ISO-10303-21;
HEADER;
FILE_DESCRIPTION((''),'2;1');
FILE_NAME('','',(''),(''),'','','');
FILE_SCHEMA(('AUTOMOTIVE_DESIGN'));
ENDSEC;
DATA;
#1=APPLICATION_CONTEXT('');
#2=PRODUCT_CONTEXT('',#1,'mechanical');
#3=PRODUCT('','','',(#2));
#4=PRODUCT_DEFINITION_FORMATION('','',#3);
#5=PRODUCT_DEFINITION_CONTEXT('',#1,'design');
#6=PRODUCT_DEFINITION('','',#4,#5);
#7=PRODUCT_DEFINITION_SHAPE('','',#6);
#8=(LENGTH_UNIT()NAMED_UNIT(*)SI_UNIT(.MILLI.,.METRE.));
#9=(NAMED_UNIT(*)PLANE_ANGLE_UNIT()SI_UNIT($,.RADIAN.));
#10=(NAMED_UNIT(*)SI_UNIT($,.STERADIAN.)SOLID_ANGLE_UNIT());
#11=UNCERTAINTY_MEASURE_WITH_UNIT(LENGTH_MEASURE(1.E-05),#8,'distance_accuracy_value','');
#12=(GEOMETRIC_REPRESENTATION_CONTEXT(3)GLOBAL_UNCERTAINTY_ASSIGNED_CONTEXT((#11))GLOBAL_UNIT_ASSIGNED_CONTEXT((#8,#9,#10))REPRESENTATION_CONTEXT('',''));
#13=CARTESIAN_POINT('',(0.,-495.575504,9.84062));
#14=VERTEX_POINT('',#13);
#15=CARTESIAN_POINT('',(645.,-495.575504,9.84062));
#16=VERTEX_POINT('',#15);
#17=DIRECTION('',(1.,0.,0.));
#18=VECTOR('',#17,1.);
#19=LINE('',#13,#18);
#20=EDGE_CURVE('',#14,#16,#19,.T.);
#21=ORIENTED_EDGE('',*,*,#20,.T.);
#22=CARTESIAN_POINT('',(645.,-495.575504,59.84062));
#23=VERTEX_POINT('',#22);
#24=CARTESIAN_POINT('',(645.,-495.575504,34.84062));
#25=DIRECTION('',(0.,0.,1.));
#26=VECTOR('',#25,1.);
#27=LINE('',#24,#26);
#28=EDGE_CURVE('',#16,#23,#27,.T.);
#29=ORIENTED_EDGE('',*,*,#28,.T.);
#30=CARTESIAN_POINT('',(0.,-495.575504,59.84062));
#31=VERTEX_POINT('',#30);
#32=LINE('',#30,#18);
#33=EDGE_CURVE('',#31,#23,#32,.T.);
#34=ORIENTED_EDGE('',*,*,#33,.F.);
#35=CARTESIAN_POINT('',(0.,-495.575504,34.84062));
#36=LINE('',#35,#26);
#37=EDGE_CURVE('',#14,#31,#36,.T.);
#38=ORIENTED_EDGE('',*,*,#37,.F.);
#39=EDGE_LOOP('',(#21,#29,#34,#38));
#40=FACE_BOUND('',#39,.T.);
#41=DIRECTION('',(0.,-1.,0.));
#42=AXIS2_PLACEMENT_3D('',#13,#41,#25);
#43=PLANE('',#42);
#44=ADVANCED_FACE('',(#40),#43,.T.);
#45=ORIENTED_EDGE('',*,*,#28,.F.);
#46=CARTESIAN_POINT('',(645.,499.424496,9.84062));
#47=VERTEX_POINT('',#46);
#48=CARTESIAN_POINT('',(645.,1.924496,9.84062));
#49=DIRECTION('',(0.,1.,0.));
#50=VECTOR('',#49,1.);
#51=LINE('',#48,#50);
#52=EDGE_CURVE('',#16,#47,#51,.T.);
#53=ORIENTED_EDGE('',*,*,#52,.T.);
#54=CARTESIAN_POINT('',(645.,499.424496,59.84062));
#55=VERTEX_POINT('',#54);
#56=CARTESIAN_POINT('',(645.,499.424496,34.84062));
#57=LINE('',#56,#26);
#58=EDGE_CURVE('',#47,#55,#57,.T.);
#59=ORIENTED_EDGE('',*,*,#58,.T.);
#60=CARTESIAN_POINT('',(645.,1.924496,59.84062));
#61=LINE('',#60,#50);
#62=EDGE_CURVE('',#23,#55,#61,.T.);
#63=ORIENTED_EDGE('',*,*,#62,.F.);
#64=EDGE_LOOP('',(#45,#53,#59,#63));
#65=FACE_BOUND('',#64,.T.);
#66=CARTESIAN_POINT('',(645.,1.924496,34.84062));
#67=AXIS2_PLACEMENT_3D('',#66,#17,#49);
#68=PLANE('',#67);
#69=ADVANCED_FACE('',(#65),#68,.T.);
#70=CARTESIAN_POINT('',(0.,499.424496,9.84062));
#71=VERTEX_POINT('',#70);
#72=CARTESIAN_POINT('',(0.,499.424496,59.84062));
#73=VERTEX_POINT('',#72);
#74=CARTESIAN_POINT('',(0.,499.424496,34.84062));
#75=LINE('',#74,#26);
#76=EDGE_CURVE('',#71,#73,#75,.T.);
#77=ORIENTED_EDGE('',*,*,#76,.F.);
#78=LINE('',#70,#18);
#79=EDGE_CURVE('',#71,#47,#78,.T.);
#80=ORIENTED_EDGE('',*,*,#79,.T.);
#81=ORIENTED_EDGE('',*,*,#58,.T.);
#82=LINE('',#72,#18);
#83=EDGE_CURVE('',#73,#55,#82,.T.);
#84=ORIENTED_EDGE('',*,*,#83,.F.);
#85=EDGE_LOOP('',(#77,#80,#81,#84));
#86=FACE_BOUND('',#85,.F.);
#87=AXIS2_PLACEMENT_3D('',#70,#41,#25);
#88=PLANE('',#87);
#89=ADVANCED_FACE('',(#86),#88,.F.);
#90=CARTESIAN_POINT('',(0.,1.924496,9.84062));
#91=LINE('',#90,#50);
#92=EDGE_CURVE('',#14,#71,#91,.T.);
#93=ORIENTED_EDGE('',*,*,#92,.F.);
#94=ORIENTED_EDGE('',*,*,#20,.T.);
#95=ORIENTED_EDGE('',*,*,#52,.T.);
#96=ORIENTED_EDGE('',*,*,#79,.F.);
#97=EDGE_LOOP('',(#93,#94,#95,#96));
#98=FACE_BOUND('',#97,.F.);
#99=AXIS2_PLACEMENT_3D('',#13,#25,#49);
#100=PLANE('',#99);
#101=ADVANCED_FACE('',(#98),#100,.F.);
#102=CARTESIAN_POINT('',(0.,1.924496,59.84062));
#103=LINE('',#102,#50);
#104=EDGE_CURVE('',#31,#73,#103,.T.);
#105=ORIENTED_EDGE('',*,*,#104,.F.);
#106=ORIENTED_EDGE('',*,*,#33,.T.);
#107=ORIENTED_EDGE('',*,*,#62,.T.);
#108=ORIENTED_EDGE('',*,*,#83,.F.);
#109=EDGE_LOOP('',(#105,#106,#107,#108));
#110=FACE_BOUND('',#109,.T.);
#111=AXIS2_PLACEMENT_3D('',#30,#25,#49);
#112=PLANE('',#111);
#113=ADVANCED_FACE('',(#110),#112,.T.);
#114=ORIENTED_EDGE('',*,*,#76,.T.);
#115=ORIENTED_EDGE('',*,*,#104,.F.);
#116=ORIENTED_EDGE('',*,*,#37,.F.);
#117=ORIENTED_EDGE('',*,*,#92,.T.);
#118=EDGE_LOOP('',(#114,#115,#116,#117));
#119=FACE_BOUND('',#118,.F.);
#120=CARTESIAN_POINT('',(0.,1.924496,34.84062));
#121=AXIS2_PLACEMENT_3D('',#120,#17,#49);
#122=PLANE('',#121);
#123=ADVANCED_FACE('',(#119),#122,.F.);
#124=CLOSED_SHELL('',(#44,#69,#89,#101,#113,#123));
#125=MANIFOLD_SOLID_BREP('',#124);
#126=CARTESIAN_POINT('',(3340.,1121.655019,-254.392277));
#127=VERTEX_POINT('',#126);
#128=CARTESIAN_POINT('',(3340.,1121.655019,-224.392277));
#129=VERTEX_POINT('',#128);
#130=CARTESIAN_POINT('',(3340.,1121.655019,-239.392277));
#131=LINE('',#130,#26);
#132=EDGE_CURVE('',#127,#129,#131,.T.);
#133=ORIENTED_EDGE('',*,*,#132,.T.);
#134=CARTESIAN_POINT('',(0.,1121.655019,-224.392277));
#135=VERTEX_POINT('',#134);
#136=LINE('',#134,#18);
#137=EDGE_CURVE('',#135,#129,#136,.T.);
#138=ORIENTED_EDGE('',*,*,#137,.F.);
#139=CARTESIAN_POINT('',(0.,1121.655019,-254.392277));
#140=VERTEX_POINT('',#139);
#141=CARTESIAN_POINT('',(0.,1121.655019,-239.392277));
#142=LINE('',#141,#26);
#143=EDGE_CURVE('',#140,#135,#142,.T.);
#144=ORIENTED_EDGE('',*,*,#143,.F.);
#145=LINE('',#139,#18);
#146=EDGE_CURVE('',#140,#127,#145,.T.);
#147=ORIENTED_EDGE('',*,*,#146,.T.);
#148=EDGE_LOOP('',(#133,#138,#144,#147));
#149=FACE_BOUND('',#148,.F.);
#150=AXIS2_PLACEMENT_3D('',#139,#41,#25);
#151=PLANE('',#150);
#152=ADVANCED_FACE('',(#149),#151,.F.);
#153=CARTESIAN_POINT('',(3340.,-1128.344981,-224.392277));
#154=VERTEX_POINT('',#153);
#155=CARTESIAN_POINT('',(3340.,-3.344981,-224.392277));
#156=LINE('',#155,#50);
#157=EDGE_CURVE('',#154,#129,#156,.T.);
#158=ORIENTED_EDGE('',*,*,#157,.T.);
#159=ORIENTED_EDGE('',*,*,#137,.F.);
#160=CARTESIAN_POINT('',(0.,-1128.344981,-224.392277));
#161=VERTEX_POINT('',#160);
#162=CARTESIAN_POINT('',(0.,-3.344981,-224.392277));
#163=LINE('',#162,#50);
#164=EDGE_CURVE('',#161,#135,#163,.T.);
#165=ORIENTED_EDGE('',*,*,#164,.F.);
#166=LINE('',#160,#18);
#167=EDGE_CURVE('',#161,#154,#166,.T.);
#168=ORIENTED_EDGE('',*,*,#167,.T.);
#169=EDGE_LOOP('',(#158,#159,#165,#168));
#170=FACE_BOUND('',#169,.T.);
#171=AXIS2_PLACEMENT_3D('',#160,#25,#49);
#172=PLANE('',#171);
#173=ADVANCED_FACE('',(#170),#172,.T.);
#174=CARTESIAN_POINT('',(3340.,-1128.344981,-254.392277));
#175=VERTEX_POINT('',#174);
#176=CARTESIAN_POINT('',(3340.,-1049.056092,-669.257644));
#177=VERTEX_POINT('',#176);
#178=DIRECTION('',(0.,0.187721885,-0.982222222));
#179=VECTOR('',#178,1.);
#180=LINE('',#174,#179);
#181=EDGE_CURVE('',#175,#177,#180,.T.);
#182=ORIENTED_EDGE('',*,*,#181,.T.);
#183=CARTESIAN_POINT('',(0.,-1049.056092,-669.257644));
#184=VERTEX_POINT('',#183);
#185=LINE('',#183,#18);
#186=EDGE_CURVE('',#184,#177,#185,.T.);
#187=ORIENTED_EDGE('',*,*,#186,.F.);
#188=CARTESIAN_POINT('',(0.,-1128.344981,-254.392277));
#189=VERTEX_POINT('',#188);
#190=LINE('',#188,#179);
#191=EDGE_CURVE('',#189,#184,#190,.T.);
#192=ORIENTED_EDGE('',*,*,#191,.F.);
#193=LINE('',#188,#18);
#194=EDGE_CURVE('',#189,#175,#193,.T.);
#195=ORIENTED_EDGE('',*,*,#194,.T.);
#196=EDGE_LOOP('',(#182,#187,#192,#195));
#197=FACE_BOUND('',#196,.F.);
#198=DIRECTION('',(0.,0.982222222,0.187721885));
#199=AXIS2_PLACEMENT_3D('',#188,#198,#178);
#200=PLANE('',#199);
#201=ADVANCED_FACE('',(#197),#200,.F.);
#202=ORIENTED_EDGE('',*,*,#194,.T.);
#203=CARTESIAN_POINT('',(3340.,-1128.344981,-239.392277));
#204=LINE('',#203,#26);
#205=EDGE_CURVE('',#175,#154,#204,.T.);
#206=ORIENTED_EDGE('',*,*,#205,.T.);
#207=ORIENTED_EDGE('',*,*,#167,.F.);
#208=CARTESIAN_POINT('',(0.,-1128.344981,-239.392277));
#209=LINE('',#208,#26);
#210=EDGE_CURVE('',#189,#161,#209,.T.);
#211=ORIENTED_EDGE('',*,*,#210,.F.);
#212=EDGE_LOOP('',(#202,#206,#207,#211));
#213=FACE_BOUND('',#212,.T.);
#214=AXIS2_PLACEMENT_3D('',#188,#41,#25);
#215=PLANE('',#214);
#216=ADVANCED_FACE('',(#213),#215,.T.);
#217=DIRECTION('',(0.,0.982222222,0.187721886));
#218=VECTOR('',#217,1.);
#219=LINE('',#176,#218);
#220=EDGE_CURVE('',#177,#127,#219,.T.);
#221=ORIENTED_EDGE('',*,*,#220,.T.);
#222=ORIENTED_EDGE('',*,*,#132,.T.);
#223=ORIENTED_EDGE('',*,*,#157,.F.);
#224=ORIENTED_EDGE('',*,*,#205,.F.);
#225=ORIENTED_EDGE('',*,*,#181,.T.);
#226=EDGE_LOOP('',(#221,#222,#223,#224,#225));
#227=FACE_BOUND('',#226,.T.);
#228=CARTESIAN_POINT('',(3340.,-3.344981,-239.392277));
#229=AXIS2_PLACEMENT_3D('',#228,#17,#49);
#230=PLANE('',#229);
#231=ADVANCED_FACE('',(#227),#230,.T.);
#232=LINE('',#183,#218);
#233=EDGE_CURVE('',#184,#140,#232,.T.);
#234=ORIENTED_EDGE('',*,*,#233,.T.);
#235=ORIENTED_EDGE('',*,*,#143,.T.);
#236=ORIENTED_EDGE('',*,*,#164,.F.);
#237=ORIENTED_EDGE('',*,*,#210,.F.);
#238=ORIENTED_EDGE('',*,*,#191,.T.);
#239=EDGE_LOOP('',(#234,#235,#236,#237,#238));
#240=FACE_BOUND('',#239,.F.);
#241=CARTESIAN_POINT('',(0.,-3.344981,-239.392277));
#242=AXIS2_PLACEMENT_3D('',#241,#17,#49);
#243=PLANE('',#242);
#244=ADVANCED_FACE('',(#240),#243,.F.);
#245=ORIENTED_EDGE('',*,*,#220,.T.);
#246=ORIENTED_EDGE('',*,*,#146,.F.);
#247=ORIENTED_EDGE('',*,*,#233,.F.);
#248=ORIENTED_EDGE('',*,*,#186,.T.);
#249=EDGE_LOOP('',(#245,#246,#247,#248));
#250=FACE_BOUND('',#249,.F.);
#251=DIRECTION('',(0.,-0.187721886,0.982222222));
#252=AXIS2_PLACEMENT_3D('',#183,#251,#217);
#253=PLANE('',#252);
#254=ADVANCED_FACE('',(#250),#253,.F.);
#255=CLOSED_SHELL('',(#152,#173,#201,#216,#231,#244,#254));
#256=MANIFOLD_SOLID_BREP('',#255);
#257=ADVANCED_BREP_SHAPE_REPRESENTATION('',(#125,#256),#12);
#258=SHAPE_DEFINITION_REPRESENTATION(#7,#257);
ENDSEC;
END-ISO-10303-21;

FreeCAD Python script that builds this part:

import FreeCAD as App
import Part
import Sketcher
from FreeCAD import Vector


def add_polygon(sketch, points):
    """Adds a closed chain of lines whose ends are joined by coincident constraints."""
    first, n = sketch.GeometryCount, len(points)
    for a, b in zip(points, points[1:] + points[:1]):
        sketch.addGeometry(Part.LineSegment(App.Vector(*a, 0), App.Vector(*b, 0)), False)
    for i in range(n):
        sketch.addConstraint(Sketcher.Constraint("Coincident", first + i, 2, first + (i + 1) % n, 1))

doc = App.newDocument("Part")
body = doc.addObject("PartDesign::Body", "Body")

sketch1 = body.newObject("Sketcher::SketchObject", "Sketch")
sketch1.AttachmentSupport = (doc.getObject("YZ_Plane"), [""])
sketch1.MapMode = "FlatFace"
add_polygon(sketch1, [(-495.575504, 59.84062), (-495.575504, 9.84062), (499.424496, 9.84062), (499.424496, 59.84062)])
sketch1.addConstraint(Sketcher.Constraint("Vertical", 0))
sketch1.addConstraint(Sketcher.Constraint("Horizontal", 1))
sketch1.addConstraint(Sketcher.Constraint("Vertical", 2))
sketch1.addConstraint(Sketcher.Constraint("Horizontal", 3))
sketch1.addConstraint(Sketcher.Constraint("DistanceX", 1, 1, 1, 2, 995.0))
sketch1.addConstraint(Sketcher.Constraint("DistanceY", 0, 2, 0, 1, 50.0))
sketch1.addConstraint(Sketcher.Constraint("DistanceY", -1, 1, 0, 2, 9.84062))
sketch1.addConstraint(Sketcher.Constraint("DistanceX", 0, 2, -1, 1, 495.575504))
pad1 = body.newObject("PartDesign::Pad", "Pad")
pad1.Profile = sketch1
pad1.Length = 645
body2 = doc.addObject("PartDesign::Body", "Body001")

sketch2 = body2.newObject("Sketcher::SketchObject", "Sketch001")
sketch2.AttachmentSupport = (doc.getObject("YZ_Plane001"), [""])
sketch2.MapMode = "FlatFace"
add_polygon(sketch2, [(-1128.344981, -224.392277), (-1128.344981, -254.392277), (-1049.056092, -669.257644), (1121.655019, -254.392277), (1121.655019, -224.392277)])
sketch2.addConstraint(Sketcher.Constraint("Vertical", 0))
sketch2.addConstraint(Sketcher.Constraint("Vertical", 3))
sketch2.addConstraint(Sketcher.Constraint("Horizontal", 4))
sketch2.addConstraint(Sketcher.Constraint("Perpendicular", 1, 2))
sketch2.addConstraint(Sketcher.Constraint("Horizontal", 0, 2, 2, 2))
sketch2.addConstraint(Sketcher.Constraint("DistanceX", 4, 2, 4, 1, 2250.0))
sketch2.addConstraint(Sketcher.Constraint("DistanceY", 0, 2, 0, 1, 30.0))
sketch2.addConstraint(Sketcher.Constraint("Distance", 2, 2210.0))
sketch2.addConstraint(Sketcher.Constraint("DistanceX", 0, 2, -1, 1, 1128.344981))
sketch2.addConstraint(Sketcher.Constraint("DistanceY", 0, 2, -1, 1, 254.392277))
pad2 = body2.newObject("PartDesign::Pad", "Pad001")
pad2.Profile = sketch2
pad2.Length = 3340

doc.recompute()
